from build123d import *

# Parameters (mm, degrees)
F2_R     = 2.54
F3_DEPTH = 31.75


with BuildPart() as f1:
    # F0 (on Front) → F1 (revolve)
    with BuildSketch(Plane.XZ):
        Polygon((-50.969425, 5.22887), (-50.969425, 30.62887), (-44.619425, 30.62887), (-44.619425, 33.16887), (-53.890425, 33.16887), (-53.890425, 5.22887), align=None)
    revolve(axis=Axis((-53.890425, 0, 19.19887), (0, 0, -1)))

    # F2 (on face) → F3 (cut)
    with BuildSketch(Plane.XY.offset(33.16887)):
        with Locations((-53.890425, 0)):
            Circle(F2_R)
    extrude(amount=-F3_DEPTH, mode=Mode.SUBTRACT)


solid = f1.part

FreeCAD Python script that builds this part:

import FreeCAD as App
import Part
import Sketcher

V = App.Vector
Q = App.Units.Quantity


def add_polygon(sketch, points):
    """Adds a closed chain of lines whose ends are joined by coincident constraints."""
    first, n = sketch.GeometryCount, len(points)
    for a, b in zip(points, points[1:] + points[:1]):
        sketch.addGeometry(Part.LineSegment(App.Vector(*a, 0), App.Vector(*b, 0)), False)
    for i in range(n):
        sketch.addConstraint(Sketcher.Constraint("Coincident", first + i, 2, first + (i + 1) % n, 1))

doc = App.newDocument("Part")
body = doc.addObject("PartDesign::Body", "Body")

sketch1 = body.newObject("Sketcher::SketchObject", "Sketch")
sketch1.AttachmentSupport = (doc.getObject("XZ_Plane"), [""])
sketch1.MapMode = "FlatFace"
add_polygon(sketch1, [(-50.969425, 5.22887), (-50.969425, 30.62887), (-44.619425, 30.62887), (-44.619425, 33.16887), (-53.890425, 33.16887), (-53.890425, 5.22887)])
sketch1.addGeometry(Part.LineSegment(V(-53.890425, 33.16887, 0), V(-53.890425, 5.22887, 0)), True)
sketch1.addConstraint(Sketcher.Constraint("Vertical", 0))
sketch1.addConstraint(Sketcher.Constraint("Horizontal", 1))
sketch1.addConstraint(Sketcher.Constraint("Vertical", 2))
sketch1.addConstraint(Sketcher.Constraint("Horizontal", 3))
sketch1.addConstraint(Sketcher.Constraint("Vertical", 4))
sketch1.addConstraint(Sketcher.Constraint("Horizontal", 5))
sketch1.addConstraint(Sketcher.Constraint("Vertical", 6))
sketch1.addConstraint(Sketcher.Constraint("Coincident", 6, 1, 3, 2))
sketch1.addConstraint(Sketcher.Constraint("Horizontal", 5, 2, 6, 2))
sketch1.addConstraint(Sketcher.Constraint("DistanceY", 0, 1, 0, 2, Q("1 in")))
sketch1.addConstraint(Sketcher.Constraint("DistanceY", 2, 1, 2, 2, Q("0.1 in")))
sketch1.addConstraint(Sketcher.Constraint("DistanceX", 1, 1, 1, 2, Q("0.25 in")))
sketch1.addConstraint(Sketcher.Constraint("DistanceX", 3, 2, 3, 1, Q("0.365 in")))
sketch1.addConstraint(Sketcher.Constraint("DistanceY", -1, 1, 0, 2, 30.62887))
sketch1.addConstraint(Sketcher.Constraint("DistanceX", 0, 2, -1, 1, 50.969425))
revolution = body.newObject("PartDesign::Revolution", "Revolution")
revolution.Profile = sketch1
revolution.ReferenceAxis = (sketch1, ["Axis0"])
revolution.Angle = 360

sketch2 = body.newObject("Sketcher::SketchObject", "Sketch001")
sketch2.AttachmentSupport = (doc.getObject("XY_Plane"), [""])
sketch2.MapMode = "FlatFace"
sketch2.AttachmentOffset = App.Placement(V(0, 0, 33.16887), App.Rotation())
sketch2.addGeometry(Part.Circle(V(-53.890425, 0, 0), V(0, 0, 1), 2.54), False)
sketch2.addConstraint(Sketcher.Constraint("PointOnObject", 0, 3, -1))
sketch2.addConstraint(Sketcher.Constraint("Diameter", 0, Q("0.2 in")))
sketch2.addConstraint(Sketcher.Constraint("DistanceX", 0, 3, -1, 1, 53.890425))
pocket1 = body.newObject("PartDesign::Pocket", "Pocket")
pocket1.Profile = sketch2
pocket1.Length = Q("1.25 in")

doc.recompute()
